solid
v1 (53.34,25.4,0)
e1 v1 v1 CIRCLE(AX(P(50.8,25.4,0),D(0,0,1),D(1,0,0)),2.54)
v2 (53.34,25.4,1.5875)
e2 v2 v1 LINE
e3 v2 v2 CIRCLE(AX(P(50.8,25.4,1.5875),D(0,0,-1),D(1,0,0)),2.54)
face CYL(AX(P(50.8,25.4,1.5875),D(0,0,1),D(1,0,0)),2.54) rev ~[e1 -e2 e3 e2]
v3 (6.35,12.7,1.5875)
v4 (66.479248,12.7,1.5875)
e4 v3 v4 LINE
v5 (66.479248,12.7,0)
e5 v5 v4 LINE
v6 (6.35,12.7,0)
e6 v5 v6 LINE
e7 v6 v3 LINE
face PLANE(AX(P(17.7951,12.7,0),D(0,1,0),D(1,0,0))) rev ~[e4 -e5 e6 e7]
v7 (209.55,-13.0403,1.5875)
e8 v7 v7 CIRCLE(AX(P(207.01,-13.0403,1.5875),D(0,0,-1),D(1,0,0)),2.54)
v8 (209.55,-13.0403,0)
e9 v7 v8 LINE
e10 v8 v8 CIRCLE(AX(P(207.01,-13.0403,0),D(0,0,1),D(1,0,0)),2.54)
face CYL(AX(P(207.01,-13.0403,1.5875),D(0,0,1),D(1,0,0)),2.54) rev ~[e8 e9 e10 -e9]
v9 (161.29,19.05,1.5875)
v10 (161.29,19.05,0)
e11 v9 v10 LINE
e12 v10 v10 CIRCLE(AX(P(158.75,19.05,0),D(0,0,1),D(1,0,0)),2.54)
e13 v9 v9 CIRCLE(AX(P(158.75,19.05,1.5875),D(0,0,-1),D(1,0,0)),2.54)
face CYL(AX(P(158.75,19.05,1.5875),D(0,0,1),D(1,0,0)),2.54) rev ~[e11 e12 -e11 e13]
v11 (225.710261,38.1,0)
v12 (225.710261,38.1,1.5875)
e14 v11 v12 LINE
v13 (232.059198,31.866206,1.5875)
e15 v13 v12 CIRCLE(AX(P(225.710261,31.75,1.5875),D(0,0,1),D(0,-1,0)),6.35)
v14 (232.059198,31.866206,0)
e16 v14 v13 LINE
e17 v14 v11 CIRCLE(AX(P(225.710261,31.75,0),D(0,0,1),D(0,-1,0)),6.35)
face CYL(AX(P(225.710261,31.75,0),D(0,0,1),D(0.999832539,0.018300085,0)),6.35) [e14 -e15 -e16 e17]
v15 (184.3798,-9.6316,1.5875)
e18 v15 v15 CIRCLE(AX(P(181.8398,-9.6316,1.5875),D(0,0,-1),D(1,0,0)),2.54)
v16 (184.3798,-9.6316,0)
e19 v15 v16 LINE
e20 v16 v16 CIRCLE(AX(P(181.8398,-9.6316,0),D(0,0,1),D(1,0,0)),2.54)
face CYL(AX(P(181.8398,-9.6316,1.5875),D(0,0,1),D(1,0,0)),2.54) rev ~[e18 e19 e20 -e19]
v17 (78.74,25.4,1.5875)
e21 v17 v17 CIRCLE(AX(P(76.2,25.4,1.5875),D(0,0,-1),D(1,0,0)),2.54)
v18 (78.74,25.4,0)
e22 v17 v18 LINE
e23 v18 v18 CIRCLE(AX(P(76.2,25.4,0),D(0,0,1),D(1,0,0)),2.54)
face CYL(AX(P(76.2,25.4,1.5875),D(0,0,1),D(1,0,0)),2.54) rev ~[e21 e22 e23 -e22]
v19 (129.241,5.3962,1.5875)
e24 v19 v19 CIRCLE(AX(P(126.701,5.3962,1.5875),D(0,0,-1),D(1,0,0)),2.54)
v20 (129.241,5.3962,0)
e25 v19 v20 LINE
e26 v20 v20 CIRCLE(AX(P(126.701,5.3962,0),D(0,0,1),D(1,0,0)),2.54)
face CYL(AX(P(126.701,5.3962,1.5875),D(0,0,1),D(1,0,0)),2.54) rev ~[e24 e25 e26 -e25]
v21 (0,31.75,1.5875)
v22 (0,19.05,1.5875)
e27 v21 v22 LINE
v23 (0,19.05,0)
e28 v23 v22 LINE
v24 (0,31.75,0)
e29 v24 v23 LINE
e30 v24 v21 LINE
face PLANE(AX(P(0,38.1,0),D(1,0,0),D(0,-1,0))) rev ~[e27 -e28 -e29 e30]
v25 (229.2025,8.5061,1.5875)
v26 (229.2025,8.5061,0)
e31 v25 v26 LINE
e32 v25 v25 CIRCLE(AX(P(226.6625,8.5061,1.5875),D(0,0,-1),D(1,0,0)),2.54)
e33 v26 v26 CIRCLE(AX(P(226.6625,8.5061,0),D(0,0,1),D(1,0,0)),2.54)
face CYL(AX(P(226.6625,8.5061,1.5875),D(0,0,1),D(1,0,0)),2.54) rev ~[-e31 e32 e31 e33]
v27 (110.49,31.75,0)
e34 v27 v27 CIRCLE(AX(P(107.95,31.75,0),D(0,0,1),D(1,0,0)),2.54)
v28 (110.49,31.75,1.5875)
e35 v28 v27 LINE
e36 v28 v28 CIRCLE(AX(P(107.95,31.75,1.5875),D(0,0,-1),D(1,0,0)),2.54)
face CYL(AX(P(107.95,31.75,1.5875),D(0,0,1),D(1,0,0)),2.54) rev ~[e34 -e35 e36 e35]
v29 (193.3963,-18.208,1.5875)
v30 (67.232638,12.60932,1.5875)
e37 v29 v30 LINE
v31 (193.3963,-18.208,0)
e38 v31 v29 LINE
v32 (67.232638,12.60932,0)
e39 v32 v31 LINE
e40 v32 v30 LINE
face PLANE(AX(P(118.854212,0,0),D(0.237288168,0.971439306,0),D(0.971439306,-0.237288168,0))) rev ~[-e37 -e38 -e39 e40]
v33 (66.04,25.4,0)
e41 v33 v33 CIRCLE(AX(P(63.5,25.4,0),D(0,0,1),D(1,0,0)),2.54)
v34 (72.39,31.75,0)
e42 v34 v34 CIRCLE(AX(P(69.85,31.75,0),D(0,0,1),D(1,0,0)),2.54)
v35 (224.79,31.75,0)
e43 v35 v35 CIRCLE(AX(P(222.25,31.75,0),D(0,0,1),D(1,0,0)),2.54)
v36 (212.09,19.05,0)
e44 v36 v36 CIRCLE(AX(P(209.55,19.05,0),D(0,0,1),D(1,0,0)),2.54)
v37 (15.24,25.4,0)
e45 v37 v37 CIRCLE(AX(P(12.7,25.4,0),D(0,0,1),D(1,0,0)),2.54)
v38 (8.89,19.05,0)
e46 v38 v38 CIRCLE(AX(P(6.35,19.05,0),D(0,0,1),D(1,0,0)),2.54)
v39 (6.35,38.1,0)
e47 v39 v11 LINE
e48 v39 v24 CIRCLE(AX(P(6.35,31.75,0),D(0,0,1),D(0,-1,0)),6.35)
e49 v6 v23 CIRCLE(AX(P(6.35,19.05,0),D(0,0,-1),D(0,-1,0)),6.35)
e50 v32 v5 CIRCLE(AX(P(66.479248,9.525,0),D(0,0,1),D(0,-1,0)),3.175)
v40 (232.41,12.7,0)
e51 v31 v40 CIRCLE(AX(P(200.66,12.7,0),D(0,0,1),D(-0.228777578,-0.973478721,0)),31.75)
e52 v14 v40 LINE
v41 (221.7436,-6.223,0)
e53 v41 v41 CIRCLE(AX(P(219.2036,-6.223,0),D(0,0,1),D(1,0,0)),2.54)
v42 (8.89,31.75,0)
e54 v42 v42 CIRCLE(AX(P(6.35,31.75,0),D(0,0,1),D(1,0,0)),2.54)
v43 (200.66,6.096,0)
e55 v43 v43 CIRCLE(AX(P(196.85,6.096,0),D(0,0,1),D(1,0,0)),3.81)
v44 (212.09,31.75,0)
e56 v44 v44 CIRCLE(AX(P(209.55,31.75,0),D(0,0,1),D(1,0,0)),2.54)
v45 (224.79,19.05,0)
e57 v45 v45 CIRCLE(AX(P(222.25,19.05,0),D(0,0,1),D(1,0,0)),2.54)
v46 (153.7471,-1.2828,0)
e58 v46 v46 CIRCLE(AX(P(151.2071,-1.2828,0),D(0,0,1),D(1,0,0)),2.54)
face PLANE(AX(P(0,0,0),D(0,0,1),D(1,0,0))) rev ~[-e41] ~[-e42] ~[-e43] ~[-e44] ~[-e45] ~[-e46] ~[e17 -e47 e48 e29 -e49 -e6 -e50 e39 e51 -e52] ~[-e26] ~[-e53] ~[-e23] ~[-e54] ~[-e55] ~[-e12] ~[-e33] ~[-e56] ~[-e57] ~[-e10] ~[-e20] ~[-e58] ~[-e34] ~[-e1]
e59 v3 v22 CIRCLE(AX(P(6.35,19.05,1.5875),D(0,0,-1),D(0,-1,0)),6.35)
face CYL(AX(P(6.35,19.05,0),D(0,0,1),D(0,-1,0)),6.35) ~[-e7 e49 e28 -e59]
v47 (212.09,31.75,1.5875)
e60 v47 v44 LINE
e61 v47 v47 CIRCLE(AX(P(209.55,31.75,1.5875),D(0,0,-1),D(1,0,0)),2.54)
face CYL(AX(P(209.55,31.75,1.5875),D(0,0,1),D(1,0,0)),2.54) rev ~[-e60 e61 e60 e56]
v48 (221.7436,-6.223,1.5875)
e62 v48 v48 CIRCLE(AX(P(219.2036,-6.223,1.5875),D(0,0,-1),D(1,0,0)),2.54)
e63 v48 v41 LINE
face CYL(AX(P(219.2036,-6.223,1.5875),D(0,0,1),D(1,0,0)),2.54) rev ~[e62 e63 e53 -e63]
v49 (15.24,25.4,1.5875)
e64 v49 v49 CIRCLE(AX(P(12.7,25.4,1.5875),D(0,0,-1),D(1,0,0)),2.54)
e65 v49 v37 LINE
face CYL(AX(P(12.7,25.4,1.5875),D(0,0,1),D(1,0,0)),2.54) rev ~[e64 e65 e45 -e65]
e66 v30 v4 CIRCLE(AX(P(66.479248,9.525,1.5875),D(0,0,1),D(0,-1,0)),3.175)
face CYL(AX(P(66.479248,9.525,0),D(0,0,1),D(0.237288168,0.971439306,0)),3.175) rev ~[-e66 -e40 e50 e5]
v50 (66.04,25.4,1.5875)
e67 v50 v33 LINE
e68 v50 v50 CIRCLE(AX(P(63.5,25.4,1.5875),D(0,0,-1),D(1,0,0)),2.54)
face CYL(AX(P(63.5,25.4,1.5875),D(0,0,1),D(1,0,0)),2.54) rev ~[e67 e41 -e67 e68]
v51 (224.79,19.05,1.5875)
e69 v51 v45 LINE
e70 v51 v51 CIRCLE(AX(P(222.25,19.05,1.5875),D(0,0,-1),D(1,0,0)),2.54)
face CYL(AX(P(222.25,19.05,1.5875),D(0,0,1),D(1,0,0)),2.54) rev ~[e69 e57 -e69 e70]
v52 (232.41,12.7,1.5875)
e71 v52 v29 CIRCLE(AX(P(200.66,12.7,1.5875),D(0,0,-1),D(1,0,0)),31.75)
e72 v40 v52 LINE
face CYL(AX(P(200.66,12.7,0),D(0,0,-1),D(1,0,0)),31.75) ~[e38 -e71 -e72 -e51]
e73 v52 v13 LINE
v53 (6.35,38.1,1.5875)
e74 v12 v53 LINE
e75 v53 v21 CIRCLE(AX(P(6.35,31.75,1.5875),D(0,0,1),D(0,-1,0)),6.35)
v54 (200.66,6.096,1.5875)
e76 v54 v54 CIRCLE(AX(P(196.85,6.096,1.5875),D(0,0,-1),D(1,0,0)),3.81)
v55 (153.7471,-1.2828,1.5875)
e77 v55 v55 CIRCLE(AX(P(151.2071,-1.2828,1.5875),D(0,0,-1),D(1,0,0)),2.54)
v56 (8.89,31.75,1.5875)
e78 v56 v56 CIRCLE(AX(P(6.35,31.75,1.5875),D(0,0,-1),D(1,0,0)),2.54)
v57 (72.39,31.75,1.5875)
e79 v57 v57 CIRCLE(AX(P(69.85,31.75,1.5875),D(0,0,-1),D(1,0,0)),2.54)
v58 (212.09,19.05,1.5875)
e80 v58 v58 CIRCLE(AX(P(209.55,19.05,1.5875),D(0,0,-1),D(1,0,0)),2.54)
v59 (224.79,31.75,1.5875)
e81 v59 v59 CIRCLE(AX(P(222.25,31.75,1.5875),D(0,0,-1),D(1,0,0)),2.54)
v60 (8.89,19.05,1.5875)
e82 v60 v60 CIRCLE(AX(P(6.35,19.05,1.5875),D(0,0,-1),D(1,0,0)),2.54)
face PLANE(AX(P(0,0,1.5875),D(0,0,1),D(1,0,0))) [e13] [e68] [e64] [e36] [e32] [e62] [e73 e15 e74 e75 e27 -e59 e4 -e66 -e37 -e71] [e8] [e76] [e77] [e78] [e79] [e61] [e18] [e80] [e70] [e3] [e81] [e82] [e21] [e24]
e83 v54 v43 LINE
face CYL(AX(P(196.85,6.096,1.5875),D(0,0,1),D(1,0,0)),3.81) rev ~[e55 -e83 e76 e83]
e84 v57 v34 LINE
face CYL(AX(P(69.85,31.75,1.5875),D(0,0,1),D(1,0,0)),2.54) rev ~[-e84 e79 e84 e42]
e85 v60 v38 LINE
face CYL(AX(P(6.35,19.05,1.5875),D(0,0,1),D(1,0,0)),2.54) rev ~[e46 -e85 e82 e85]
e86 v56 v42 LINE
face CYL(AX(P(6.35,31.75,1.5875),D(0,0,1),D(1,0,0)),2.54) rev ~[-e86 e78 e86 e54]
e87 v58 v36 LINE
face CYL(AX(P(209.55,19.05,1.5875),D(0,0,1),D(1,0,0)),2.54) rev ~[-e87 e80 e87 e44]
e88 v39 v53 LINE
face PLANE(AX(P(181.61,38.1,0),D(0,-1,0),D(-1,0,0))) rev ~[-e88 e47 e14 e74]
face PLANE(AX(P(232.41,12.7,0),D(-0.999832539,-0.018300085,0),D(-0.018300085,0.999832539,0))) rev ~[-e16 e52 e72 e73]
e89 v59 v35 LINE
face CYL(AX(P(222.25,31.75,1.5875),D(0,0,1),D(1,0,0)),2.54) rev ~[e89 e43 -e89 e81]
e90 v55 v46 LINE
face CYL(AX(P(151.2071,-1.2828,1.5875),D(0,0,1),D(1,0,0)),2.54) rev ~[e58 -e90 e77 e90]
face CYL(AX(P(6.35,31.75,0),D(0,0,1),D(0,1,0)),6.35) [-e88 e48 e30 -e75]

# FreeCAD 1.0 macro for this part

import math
import FreeCAD as App
import Part
import Sketcher
from FreeCAD import Vector
Q = App.Units.Quantity


def edges_at(feature, points):
    """Names of the edges that pass closest to the given points."""
    edges = feature.Shape.Edges
    near = lambda p: min(range(len(edges)), key=lambda i: edges[i].distToShape(Part.Vertex(*p))[0])
    return sorted({f"Edge{near(p) + 1}" for p in points})

doc = App.newDocument("Part")
body = doc.addObject("PartDesign::Body", "Body")

# Sketch on XY plane
sketch1 = body.newObject("Sketcher::SketchObject", "Sketch")
sketch1.AttachmentSupport = (doc.getObject("XY_Plane"), [""])
sketch1.MapMode = "FlatFace"
sketch1.addGeometry(Part.ArcOfCircle(Part.Circle(Vector(201, 13, 0), Vector(0, 0, 1), 32), math.radians(-103), math.radians(0)), False)
sketch1.addGeometry(Part.LineSegment(Vector(232, 13, 0), Vector(232, 38, 0)), False)
sketch1.addGeometry(Part.LineSegment(Vector(232, 38, 0), Vector(0, 38, 0)), False)
sketch1.addGeometry(Part.LineSegment(Vector(0, 38, 0), Vector(0, 13, 0)), False)
sketch1.addGeometry(Part.LineSegment(Vector(0, 13, 0), Vector(67, 13, 0)), False)
sketch1.addGeometry(Part.LineSegment(Vector(67, 13, 0), Vector(193, -18, 0)), False)
sketch1.addConstraint(Sketcher.Constraint("Coincident", 0, 2, 1, 1))
sketch1.addConstraint(Sketcher.Constraint("Coincident", 1, 2, 2, 1))
sketch1.addConstraint(Sketcher.Constraint("Coincident", 2, 2, 3, 1))
sketch1.addConstraint(Sketcher.Constraint("Coincident", 3, 2, 4, 1))
sketch1.addConstraint(Sketcher.Constraint("Coincident", 4, 2, 5, 1))
sketch1.addConstraint(Sketcher.Constraint("Coincident", 5, 2, 0, 1))
sketch1.addConstraint(Sketcher.Constraint("Horizontal", 2))
sketch1.addConstraint(Sketcher.Constraint("Vertical", 3))
sketch1.addConstraint(Sketcher.Constraint("Horizontal", 4))
sketch1.addConstraint(Sketcher.Constraint("PointOnObject", 2, 2, -2))
sketch1.addConstraint(Sketcher.Constraint("Horizontal", 0, 2, 3, 2))
sketch1.addConstraint(Sketcher.Constraint("DistanceY", 3, 2, 3, 1, Q("1 in")))
sketch1.addConstraint(Sketcher.Constraint("Radius", 0, Q("1.25 in")))
sketch1.addConstraint(Sketcher.Constraint("DistanceY", 0, 3, 1, 2, Q("1 in")))
sketch1.addConstraint(Sketcher.Constraint("DistanceY", -1, 1, 0, 3, Q("0.5 in")))
sketch1.addConstraint(Sketcher.Constraint("DistanceX", -1, 1, 0, 3, Q("7.9 in")))
sketch1.addConstraint(Sketcher.Constraint("DistanceX", 2, 2, 2, 1, Q("9.1317 in")))
sketch1.addConstraint(Sketcher.Constraint("DistanceX", 4, 1, 4, 2, 66.8614))
sketch1.addConstraint(Sketcher.Constraint("DistanceX", 4, 2, 5, 2, Q("4.9817 in")))
pad1 = body.newObject("PartDesign::Pad", "Pad")
pad1.Profile = sketch1
pad1.Length = Q("0.0625 in")
doc.recompute()

fillet = body.newObject("PartDesign::Fillet", "Fillet")
fillet.Base = (pad1, edges_at(pad1, [(0, 38.1, 0.794), (0, 12.7, 0.794), (231.945, 38.1, 0.794)]))
fillet.Radius = Q("0.25 in")

# Sketch on XY plane
sketch2 = body.newObject("Sketcher::SketchObject", "Sketch001")
sketch2.AttachmentSupport = (doc.getObject("XY_Plane"), [""])
sketch2.MapMode = "FlatFace"
sketch2.AttachmentOffset = App.Placement(Vector(0, 0, 0.0625 * 25.4), App.Rotation())
sketch2.addGeometry(Part.Circle(Vector(209.6, 31.8, 0), Vector(0, 0, 1), 2.5), False)
sketch2.addGeometry(Part.Circle(Vector(209.6, 19.1, 0), Vector(0, 0, 1), 2.5), False)
sketch2.addGeometry(Part.Circle(Vector(196.8, 6.1, 0), Vector(0, 0, 1), 3.8), False)
sketch2.addGeometry(Part.Circle(Vector(6.3, 19.1, 0), Vector(0, 0, 1), 2.5), False)
sketch2.addGeometry(Part.Circle(Vector(6.3, 31.8, 0), Vector(0, 0, 1), 2.5), False)
sketch2.addGeometry(Part.Circle(Vector(69.8, 31.8, 0), Vector(0, 0, 1), 2.5), False)
sketch2.addGeometry(Part.Circle(Vector(108, 31.8, 0), Vector(0, 0, 1), 2.5), False)
sketch2.addGeometry(Part.Circle(Vector(158.8, 19.1, 0), Vector(0, 0, 1), 2.5), False)
sketch2.addConstraint(Sketcher.Constraint("Equal", 0, 1))
sketch2.addConstraint(Sketcher.Constraint("Equal", 1, 3))
sketch2.addConstraint(Sketcher.Constraint("Equal", 3, 4))
sketch2.addConstraint(Sketcher.Constraint("Equal", 4, 5))
sketch2.addConstraint(Sketcher.Constraint("Equal", 5, 6))
sketch2.addConstraint(Sketcher.Constraint("Equal", 6, 7))
sketch2.addConstraint(Sketcher.Constraint("Horizontal", 1, 3, 3, 3))
sketch2.addConstraint(Sketcher.Constraint("Horizontal", 0, 3, 4, 3))
sketch2.addConstraint(Sketcher.Constraint("Horizontal", 4, 3, 5, 3))
sketch2.addConstraint(Sketcher.Constraint("Horizontal", 5, 3, 6, 3))
sketch2.addConstraint(Sketcher.Constraint("Horizontal", 3, 3, 7, 3))
sketch2.addConstraint(Sketcher.Constraint("Vertical", 0, 3, 1, 3))
sketch2.addConstraint(Sketcher.Constraint("Vertical", 3, 3, 4, 3))
sketch2.addConstraint(Sketcher.Constraint("Diameter", 0, Q("0.2 in")))
sketch2.addConstraint(Sketcher.Constraint("Diameter", 2, Q("0.3 in")))
sketch2.addConstraint(Sketcher.Constraint("DistanceX", 7, 3, 1, 3, Q("2 in")))
sketch2.addConstraint(Sketcher.Constraint("DistanceX", 6, 3, 7, 3, Q("2 in")))
sketch2.addConstraint(Sketcher.Constraint("DistanceY", 1, 3, 0, 3, Q("0.5 in")))
sketch2.addConstraint(Sketcher.Constraint("DistanceX", 2, 3, 1, 3, Q("0.5 in")))
sketch2.addConstraint(Sketcher.Constraint("DistanceX", -1, 1, 3, 3, Q("0.25 in")))
sketch2.addConstraint(Sketcher.Constraint("DistanceY", 2, 3, 1, 3, Q("0.51 in")))
sketch2.addConstraint(Sketcher.Constraint("DistanceX", 3, 3, 1, 3, Q("8 in")))
sketch2.addConstraint(Sketcher.Constraint("DistanceX", 5, 3, 2, 3, Q("5 in")))
sketch2.addConstraint(Sketcher.Constraint("DistanceY", -1, 1, 0, 3, Q("1.25 in")))
pocket1 = body.newObject("PartDesign::Pocket", "Pocket")
pocket1.Profile = sketch2
pocket1.Length = Q("1 in")

# Sketch on XY plane
sketch3 = body.newObject("Sketcher::SketchObject", "Sketch002")
sketch3.AttachmentSupport = (doc.getObject("XY_Plane"), [""])
sketch3.MapMode = "FlatFace"
sketch3.AttachmentOffset = App.Placement(Vector(0, 0, 0.0625 * 25.4), App.Rotation())
sketch3.addGeometry(Part.Circle(Vector(126.7, 5.4, 0), Vector(0, 0, 1), 2.5), False)
sketch3.addGeometry(Part.Circle(Vector(151.2, -1.3, 0), Vector(0, 0, 1), 2.5), False)
sketch3.addGeometry(Part.Circle(Vector(181.8, -9.6, 0), Vector(0, 0, 1), 2.5), False)
sketch3.addGeometry(Part.Circle(Vector(207, -13, 0), Vector(0, 0, 1), 2.5), False)
sketch3.addGeometry(Part.Circle(Vector(219.2, -6.2, 0), Vector(0, 0, 1), 2.5), False)
sketch3.addGeometry(Part.Circle(Vector(226.7, 8.5, 0), Vector(0, 0, 1), 2.5), False)
sketch3.addGeometry(Part.Circle(Vector(222.2, 19.1, 0), Vector(0, 0, 1), 2.5), False)
sketch3.addGeometry(Part.Circle(Vector(222.2, 31.8, 0), Vector(0, 0, 1), 2.5), False)
sketch3.addGeometry(Part.Circle(Vector(76.2, 25.4, 0), Vector(0, 0, 1), 2.5), False)
sketch3.addGeometry(Part.Circle(Vector(63.5, 25.4, 0), Vector(0, 0, 1), 2.5), False)
sketch3.addGeometry(Part.Circle(Vector(50.8, 25.4, 0), Vector(0, 0, 1), 2.5), False)
sketch3.addGeometry(Part.Circle(Vector(12.7, 25.4, 0), Vector(0, 0, 1), 2.5), False)
sketch3.addConstraint(Sketcher.Constraint("Equal", 0, 1))
sketch3.addConstraint(Sketcher.Constraint("Equal", 1, 2))
sketch3.addConstraint(Sketcher.Constraint("Equal", 2, 3))
sketch3.addConstraint(Sketcher.Constraint("Equal", 3, 4))
sketch3.addConstraint(Sketcher.Constraint("Equal", 4, 5))
sketch3.addConstraint(Sketcher.Constraint("Equal", 5, 6))
sketch3.addConstraint(Sketcher.Constraint("Equal", 6, 7))
sketch3.addConstraint(Sketcher.Constraint("Equal", 7, 8))
sketch3.addConstraint(Sketcher.Constraint("Equal", 8, 9))
sketch3.addConstraint(Sketcher.Constraint("Equal", 9, 10))
sketch3.addConstraint(Sketcher.Constraint("Equal", 10, 11))
sketch3.addConstraint(Sketcher.Constraint("Horizontal", 8, 3, 9, 3))
sketch3.addConstraint(Sketcher.Constraint("Horizontal", 9, 3, 10, 3))
sketch3.addConstraint(Sketcher.Constraint("Horizontal", 10, 3, 11, 3))
sketch3.addConstraint(Sketcher.Constraint("Vertical", 6, 3, 7, 3))
sketch3.addConstraint(Sketcher.Constraint("Diameter", 0, Q("0.2 in")))
sketch3.addConstraint(Sketcher.Constraint("DistanceY", -1, 1, 8, 3, Q("1 in")))
sketch3.addConstraint(Sketcher.Constraint("DistanceX", 10, 3, 8, 3, Q("1 in")))
sketch3.addConstraint(Sketcher.Constraint("DistanceX", -1, 1, 11, 3, Q("0.5 in")))
sketch3.addConstraint(Sketcher.Constraint("DistanceY", 6, 3, 7, 3, Q("0.5 in")))
sketch3.addConstraint(Sketcher.Constraint("DistanceX", 9, 3, 8, 3, Q("0.5 in")))
sketch3.addConstraint(Sketcher.Constraint("DistanceX", 11, 3, 10, 3, Q("1.5 in")))
sketch3.addConstraint(Sketcher.Constraint("DistanceY", -1, 1, 7, 3, Q("1.25 in")))
sketch3.addConstraint(Sketcher.Constraint("DistanceX", 3, 3, 6, 3, Q("0.6 in")))
sketch3.addConstraint(Sketcher.Constraint("DistanceX", -1, 1, 3, 3, Q("8.15 in")))
sketch3.addConstraint(Sketcher.Constraint("DistanceY", 4, 3, -1, 1, Q("0.245 in")))
sketch3.addConstraint(Sketcher.Constraint("DistanceX", 1, 3, 2, 3, Q("1.206 in")))
sketch3.addConstraint(Sketcher.Constraint("DistanceY", 1, 3, -1, 1, Q("0.0505 in")))
sketch3.addConstraint(Sketcher.Constraint("DistanceY", 2, 3, -1, 1, Q("0.3792 in")))
sketch3.addConstraint(Sketcher.Constraint("DistanceY", 3, 3, -1, 1, Q("0.5134 in")))
sketch3.addConstraint(Sketcher.Constraint("DistanceX", 0, 3, 1, 3, Q("0.9648 in")))
sketch3.addConstraint(Sketcher.Constraint("DistanceY", 1, 3, 5, 3, Q("0.3854 in")))
sketch3.addConstraint(Sketcher.Constraint("DistanceX", 0, 3, 5, 3, Q("3.9355 in")))
sketch3.addConstraint(Sketcher.Constraint("DistanceX", -1, 1, 0, 3, 126.701))
sketch3.addConstraint(Sketcher.Constraint("DistanceY", -1, 1, 0, 3, 5.3962))
sketch3.addConstraint(Sketcher.Constraint("DistanceX", -1, 1, 4, 3, 219.2036))
pocket2 = body.newObject("PartDesign::Pocket", "Pocket001")
pocket2.Profile = sketch3
pocket2.Length = Q("1 in")
doc.recompute()

fillet2 = body.newObject("PartDesign::Fillet", "Fillet001")
fillet2.Base = (pocket2, edges_at(pocket2, [(66.861, 12.7, 0.794)]))
fillet2.Radius = Q("0.125 in")

doc.recompute()
